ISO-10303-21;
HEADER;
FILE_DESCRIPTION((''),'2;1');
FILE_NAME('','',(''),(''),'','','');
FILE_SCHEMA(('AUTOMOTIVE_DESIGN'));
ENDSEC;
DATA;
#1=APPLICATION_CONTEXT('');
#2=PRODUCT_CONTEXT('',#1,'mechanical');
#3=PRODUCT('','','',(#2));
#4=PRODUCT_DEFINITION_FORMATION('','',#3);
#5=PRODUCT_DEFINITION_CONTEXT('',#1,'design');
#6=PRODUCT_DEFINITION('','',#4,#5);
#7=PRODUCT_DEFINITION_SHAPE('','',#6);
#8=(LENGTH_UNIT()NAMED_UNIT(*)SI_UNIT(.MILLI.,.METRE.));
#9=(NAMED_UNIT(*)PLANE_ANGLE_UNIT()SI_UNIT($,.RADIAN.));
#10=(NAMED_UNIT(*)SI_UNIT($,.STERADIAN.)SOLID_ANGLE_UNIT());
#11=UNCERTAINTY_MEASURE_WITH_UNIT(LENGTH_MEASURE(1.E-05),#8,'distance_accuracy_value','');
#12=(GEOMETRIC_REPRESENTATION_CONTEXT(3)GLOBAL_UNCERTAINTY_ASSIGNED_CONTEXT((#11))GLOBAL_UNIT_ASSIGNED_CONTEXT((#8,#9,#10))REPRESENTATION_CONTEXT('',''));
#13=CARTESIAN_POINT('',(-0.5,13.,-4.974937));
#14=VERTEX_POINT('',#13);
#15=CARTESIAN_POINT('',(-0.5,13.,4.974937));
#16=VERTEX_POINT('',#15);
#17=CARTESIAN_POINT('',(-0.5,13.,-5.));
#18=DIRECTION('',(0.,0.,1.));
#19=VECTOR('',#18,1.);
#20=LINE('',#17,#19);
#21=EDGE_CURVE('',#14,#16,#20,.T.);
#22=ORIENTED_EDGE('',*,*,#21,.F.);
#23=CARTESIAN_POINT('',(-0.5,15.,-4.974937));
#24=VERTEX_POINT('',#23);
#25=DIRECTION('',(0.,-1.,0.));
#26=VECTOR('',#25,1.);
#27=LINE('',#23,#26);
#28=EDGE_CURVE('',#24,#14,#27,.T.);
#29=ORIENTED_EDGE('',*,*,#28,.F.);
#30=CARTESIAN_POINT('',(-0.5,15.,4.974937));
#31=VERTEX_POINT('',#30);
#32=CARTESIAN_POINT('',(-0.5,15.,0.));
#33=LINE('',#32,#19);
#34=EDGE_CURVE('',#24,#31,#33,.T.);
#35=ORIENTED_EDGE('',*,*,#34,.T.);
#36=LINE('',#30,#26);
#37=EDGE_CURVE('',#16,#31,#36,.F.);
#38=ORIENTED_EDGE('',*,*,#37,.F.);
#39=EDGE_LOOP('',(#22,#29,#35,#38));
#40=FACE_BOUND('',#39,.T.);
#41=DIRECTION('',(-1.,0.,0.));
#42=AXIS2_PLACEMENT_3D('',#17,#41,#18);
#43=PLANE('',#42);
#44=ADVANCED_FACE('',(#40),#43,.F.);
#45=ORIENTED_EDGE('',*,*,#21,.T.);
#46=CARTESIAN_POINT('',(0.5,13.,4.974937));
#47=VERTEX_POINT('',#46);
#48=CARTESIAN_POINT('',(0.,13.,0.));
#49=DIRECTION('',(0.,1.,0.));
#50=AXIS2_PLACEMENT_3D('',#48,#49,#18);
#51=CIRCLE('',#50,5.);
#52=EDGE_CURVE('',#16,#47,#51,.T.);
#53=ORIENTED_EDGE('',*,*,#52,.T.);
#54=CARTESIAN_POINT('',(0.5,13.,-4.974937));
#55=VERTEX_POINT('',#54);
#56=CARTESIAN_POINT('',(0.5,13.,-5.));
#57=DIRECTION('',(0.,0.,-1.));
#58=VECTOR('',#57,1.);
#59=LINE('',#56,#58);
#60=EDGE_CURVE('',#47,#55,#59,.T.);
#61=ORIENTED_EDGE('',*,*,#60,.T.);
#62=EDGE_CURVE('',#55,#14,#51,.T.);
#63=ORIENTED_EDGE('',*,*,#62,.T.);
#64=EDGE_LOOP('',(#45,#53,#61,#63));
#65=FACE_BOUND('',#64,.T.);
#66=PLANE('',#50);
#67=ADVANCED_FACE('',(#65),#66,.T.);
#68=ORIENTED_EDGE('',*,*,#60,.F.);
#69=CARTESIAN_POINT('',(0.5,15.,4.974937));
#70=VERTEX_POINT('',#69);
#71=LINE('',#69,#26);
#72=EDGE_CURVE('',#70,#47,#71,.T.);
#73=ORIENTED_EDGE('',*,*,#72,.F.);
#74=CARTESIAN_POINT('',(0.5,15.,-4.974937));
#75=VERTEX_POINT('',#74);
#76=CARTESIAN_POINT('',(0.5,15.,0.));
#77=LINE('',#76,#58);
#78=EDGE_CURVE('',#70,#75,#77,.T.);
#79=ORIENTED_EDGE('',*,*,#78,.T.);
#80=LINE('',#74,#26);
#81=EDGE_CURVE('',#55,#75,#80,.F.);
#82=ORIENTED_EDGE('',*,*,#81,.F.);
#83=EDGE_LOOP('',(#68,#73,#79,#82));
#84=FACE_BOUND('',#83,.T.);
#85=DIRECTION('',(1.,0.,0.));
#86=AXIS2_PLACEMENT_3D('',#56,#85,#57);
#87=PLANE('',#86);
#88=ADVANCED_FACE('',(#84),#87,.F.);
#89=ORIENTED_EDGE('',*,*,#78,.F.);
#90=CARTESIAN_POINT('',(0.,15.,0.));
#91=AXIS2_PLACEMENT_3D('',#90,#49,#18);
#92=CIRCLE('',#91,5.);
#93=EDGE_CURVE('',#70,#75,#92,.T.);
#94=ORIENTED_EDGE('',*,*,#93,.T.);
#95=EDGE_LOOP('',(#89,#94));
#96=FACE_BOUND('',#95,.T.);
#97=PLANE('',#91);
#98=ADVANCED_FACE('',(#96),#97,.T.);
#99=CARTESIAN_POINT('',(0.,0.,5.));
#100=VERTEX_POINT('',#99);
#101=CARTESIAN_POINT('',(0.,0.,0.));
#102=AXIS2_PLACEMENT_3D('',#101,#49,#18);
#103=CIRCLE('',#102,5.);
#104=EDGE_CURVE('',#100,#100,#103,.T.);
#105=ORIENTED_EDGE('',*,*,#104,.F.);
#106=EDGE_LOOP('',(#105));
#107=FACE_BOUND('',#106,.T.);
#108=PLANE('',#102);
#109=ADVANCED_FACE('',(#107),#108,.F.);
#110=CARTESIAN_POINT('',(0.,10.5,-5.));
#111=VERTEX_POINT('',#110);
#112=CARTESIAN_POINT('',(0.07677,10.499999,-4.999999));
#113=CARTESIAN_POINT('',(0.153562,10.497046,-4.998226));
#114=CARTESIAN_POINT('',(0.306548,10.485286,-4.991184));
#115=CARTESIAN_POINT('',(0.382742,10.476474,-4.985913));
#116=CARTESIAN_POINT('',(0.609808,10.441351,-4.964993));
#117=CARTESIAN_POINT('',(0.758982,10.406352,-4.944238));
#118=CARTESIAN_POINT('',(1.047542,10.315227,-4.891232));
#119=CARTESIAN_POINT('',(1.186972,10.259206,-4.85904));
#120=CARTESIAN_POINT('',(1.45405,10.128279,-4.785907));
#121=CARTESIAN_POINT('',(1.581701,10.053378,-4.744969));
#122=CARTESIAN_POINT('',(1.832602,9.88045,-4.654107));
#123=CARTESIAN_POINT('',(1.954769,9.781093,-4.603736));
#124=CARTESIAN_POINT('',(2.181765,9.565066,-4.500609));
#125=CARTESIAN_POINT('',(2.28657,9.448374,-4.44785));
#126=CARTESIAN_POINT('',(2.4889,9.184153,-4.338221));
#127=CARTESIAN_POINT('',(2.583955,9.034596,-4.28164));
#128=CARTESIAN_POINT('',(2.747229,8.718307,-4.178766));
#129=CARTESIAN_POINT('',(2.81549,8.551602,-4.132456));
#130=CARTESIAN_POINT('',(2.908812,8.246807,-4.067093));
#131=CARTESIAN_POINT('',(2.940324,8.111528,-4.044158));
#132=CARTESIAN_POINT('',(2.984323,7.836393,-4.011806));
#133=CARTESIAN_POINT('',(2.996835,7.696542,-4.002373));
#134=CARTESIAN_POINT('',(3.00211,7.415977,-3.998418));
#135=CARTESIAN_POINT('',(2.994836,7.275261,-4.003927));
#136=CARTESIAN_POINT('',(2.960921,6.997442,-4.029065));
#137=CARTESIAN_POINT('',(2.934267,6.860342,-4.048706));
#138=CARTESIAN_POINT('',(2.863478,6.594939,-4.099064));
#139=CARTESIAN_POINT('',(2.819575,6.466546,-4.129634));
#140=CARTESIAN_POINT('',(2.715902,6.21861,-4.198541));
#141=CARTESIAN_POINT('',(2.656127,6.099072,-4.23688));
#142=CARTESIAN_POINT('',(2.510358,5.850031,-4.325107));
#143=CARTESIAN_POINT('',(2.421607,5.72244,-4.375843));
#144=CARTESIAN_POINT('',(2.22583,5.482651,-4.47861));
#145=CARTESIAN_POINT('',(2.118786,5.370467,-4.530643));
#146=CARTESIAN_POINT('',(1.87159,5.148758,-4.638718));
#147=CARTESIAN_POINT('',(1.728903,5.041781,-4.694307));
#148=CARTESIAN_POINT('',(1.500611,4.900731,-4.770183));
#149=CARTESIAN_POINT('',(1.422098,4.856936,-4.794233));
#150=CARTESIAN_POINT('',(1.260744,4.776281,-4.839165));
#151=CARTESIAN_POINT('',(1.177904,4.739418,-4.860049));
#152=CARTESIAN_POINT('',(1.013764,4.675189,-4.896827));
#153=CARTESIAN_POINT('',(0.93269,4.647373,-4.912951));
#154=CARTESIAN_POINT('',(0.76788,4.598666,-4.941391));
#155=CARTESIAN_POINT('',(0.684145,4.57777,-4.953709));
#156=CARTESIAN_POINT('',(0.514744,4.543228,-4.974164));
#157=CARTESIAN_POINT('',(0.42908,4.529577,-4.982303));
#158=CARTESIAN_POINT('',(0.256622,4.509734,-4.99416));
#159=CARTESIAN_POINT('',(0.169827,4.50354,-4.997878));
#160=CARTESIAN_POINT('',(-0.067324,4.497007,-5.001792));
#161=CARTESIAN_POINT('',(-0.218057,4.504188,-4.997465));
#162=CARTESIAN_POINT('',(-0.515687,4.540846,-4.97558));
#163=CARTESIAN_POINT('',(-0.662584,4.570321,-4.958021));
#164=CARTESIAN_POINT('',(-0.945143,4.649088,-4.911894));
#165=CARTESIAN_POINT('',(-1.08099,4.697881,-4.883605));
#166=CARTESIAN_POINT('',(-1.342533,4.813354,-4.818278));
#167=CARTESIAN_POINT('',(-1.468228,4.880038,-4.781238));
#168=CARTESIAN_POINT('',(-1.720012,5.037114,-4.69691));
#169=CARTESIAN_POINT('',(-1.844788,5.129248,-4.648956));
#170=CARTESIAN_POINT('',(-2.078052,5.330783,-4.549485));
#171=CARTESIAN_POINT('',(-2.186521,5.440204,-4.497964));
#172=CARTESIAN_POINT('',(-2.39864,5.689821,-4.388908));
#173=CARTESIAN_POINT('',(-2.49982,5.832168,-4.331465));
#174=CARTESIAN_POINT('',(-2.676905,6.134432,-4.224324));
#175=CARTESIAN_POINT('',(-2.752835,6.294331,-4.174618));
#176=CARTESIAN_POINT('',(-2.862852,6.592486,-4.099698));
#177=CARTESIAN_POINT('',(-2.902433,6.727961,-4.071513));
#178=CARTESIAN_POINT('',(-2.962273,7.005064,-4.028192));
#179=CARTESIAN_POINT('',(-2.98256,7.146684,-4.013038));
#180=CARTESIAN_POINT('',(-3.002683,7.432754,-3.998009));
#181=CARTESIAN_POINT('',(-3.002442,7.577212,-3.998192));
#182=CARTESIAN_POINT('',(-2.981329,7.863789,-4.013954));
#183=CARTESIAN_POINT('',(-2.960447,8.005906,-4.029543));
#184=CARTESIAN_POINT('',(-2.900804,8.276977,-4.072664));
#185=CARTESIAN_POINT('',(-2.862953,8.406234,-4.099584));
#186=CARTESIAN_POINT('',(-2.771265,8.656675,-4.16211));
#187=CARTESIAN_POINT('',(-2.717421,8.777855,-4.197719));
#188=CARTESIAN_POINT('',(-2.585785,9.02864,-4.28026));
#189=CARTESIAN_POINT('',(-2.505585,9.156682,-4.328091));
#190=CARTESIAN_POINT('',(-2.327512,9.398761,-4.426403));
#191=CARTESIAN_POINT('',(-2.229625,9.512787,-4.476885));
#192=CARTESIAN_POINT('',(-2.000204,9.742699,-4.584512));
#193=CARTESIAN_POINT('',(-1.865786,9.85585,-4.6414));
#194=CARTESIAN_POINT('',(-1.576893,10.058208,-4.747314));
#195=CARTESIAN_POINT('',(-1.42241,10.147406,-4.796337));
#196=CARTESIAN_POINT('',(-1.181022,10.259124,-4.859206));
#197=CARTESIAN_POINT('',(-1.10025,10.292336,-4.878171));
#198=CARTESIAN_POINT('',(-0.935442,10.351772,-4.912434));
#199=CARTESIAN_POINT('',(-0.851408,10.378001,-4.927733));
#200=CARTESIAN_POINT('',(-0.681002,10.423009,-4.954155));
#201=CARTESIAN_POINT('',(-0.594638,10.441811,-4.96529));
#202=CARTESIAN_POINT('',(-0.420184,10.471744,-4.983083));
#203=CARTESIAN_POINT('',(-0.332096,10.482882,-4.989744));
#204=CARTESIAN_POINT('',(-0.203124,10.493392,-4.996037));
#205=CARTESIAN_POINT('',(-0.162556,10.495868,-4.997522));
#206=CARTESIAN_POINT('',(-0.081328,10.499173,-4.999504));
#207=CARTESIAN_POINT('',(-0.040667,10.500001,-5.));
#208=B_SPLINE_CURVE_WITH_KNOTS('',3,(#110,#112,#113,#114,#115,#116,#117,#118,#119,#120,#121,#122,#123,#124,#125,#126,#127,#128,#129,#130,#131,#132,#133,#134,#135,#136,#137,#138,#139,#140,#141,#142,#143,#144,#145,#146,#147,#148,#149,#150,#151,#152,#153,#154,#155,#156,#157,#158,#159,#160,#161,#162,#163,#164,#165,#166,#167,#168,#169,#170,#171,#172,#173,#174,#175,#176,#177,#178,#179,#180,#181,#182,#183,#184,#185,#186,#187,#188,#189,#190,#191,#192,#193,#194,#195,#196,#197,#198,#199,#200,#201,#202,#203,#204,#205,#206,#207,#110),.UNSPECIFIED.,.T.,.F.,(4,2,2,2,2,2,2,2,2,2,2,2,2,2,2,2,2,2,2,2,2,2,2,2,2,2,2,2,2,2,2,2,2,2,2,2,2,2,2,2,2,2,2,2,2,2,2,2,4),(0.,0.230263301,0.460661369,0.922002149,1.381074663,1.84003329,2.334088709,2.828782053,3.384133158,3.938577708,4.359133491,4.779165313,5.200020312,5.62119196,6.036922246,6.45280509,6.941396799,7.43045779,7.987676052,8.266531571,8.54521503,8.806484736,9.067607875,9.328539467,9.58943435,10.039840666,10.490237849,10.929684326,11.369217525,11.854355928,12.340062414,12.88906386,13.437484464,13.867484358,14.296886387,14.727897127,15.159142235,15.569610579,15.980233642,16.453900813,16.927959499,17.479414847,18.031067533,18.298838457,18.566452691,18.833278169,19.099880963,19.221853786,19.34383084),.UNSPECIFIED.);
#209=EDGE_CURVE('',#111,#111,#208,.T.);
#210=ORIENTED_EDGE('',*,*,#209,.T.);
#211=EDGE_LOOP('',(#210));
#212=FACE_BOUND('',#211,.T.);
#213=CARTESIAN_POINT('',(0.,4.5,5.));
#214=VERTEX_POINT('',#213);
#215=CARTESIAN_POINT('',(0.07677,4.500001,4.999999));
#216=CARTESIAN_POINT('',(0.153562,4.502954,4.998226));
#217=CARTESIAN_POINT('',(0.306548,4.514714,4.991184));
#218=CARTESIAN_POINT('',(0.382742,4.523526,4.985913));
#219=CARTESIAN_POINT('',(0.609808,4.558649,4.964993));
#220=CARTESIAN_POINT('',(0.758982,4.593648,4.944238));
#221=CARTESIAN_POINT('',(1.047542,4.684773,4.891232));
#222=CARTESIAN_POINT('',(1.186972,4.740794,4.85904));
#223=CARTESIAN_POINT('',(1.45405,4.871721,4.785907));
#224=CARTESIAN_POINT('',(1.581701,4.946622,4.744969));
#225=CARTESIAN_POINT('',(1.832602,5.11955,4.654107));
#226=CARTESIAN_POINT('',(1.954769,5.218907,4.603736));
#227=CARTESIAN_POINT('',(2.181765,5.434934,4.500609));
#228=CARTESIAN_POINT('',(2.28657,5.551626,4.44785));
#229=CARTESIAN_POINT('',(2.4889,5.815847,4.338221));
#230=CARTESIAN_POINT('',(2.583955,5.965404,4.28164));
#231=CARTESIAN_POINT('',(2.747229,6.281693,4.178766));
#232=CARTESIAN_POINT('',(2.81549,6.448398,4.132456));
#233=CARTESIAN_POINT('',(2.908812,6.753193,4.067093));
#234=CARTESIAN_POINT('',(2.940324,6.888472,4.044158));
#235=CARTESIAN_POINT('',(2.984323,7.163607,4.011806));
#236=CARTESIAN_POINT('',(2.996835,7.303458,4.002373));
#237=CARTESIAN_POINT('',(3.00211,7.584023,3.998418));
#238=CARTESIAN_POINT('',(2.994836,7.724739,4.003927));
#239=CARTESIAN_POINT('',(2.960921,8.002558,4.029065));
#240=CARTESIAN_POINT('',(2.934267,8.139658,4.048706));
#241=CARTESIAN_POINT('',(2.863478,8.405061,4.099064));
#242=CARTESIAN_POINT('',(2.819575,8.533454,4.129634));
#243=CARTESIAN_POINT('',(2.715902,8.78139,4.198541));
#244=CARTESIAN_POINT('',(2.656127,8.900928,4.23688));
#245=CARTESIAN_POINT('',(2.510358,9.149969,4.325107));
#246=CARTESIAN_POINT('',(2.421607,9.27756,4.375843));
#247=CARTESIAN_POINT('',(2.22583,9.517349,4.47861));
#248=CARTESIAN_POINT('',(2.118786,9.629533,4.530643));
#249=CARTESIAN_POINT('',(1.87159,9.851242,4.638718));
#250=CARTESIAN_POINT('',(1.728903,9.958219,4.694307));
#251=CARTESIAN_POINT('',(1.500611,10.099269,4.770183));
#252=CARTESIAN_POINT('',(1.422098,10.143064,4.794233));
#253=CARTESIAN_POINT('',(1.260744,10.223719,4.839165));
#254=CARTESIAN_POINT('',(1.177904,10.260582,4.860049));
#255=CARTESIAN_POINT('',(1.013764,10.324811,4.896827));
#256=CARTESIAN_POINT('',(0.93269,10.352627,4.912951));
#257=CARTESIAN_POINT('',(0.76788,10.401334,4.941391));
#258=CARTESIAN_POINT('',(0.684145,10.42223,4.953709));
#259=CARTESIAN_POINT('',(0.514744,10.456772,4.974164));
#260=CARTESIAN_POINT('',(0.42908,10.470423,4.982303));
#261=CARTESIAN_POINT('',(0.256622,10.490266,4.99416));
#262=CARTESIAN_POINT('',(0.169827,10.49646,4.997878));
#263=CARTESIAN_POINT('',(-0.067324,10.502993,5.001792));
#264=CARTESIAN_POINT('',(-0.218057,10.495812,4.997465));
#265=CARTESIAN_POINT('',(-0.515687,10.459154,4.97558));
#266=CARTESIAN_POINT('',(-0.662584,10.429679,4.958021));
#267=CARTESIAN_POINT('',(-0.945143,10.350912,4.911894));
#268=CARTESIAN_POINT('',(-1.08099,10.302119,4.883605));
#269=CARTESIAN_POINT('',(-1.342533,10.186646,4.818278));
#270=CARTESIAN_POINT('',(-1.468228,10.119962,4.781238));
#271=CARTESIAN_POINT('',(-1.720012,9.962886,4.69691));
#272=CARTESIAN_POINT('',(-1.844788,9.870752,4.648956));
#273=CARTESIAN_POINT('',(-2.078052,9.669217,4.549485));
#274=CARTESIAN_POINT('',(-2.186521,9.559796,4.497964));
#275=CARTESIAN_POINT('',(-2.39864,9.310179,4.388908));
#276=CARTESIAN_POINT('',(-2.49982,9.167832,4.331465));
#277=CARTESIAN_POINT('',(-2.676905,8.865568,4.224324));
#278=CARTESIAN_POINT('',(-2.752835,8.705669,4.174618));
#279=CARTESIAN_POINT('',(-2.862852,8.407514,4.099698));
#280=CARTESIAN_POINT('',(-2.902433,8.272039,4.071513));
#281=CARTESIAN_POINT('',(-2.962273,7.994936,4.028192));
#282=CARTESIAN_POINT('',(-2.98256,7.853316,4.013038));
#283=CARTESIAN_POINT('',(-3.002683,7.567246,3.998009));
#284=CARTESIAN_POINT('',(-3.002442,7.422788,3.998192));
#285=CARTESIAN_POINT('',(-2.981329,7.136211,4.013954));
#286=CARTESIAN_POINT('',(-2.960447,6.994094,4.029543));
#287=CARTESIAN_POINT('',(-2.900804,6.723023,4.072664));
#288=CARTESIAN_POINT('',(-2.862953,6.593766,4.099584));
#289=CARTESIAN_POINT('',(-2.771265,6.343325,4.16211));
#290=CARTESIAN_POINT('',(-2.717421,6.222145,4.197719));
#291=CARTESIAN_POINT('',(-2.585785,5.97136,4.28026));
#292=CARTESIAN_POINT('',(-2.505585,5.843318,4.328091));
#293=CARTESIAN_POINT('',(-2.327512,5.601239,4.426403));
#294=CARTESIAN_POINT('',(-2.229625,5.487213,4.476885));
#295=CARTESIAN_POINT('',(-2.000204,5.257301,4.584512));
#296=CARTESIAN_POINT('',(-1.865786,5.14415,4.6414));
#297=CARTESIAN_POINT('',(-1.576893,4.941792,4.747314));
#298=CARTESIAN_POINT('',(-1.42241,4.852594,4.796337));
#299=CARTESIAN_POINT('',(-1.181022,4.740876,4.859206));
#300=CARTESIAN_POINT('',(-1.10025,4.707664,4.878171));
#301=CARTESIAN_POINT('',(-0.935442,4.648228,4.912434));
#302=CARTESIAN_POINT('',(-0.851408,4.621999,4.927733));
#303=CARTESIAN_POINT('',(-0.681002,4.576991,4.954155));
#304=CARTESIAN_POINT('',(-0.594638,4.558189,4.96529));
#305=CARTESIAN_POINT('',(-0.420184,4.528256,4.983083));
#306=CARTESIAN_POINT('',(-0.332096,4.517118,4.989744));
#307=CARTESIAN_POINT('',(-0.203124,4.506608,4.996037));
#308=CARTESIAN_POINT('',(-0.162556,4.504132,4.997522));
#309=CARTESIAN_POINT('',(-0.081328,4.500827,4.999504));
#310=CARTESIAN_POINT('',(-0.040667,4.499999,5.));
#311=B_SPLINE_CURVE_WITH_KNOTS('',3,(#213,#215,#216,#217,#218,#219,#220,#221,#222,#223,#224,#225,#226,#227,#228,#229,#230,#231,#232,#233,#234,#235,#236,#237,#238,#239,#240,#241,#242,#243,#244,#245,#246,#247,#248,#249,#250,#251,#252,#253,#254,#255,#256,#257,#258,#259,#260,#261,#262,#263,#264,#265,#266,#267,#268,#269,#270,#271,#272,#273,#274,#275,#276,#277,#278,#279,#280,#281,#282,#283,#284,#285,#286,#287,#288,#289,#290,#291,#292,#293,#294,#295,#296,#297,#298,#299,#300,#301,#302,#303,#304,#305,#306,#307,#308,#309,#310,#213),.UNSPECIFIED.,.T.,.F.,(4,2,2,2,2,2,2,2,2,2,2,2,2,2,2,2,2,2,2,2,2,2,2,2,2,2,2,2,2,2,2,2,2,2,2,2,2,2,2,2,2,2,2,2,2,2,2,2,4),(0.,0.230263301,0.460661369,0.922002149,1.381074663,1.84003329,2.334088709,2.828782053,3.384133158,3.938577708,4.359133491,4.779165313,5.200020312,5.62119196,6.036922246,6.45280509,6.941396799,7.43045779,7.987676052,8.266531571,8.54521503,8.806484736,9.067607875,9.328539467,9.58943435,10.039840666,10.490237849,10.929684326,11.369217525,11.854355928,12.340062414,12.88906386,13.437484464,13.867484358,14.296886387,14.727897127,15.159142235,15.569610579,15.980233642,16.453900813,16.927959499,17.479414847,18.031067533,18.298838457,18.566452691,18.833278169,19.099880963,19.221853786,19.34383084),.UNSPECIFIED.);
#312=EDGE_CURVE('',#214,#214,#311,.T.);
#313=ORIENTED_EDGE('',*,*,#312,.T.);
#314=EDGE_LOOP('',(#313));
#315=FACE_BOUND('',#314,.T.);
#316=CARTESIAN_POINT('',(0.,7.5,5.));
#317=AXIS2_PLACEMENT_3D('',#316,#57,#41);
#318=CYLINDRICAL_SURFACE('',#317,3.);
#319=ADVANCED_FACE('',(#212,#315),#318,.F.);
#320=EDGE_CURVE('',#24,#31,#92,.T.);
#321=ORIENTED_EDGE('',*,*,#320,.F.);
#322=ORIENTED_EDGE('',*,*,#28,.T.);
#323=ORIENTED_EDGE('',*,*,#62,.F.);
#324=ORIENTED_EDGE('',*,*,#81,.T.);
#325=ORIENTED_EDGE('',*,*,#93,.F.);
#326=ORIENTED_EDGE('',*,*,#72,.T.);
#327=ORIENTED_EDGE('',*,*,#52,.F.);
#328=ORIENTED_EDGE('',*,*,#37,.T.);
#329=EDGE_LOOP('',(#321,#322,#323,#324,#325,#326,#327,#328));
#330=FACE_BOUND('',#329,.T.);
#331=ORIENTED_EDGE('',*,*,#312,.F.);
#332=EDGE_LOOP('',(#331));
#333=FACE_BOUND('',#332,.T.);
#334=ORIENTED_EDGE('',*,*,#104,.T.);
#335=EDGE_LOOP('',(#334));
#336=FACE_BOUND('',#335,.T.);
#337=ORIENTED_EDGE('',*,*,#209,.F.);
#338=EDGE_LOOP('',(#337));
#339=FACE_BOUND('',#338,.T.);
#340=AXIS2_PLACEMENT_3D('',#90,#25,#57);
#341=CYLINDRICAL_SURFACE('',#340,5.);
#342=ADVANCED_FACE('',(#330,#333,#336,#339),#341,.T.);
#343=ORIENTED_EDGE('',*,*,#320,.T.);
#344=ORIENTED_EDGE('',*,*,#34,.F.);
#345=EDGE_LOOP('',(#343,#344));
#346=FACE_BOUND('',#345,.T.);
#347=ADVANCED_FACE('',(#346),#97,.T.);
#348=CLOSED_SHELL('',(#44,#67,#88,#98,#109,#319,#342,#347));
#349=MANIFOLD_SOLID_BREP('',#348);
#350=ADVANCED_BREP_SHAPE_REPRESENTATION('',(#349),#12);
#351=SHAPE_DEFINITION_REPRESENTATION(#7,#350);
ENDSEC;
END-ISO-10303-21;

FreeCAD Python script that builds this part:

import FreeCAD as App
import Part
import Sketcher
Q = App.Units.Quantity


def add_polygon(sketch, points):
    """Adds a closed chain of lines whose ends are joined by coincident constraints."""
    first, n = sketch.GeometryCount, len(points)
    for a, b in zip(points, points[1:] + points[:1]):
        sketch.addGeometry(Part.LineSegment(App.Vector(*a, 0), App.Vector(*b, 0)), False)
    for i in range(n):
        sketch.addConstraint(Sketcher.Constraint("Coincident", first + i, 2, first + (i + 1) % n, 1))

doc = App.newDocument("Part")
body = doc.addObject("PartDesign::Body", "Body")

sketch1 = body.newObject("Sketcher::SketchObject", "Sketch")
sketch1.AttachmentSupport = (doc.getObject("XZ_Plane"), [""])
sketch1.MapMode = "FlatFace"
sketch1.addGeometry(Part.Circle(App.Vector(0, 0, 0), App.Vector(0, 0, 1), 5), False)
sketch1.addConstraint(Sketcher.Constraint("Coincident", 0, 3, -1, 1))
sketch1.addConstraint(Sketcher.Constraint("Diameter", 0, Q("10 mm")))
pad1 = body.newObject("PartDesign::Pad", "Pad")
pad1.Profile = sketch1
pad1.Length = 15
pad1.Reversed = True

sketch2 = body.newObject("Sketcher::SketchObject", "Sketch001")
sketch2.AttachmentSupport = (doc.getObject("XZ_Plane"), [""])
sketch2.MapMode = "FlatFace"
sketch2.AttachmentOffset = App.Placement(App.Vector(0, 0, -15), App.Rotation())
add_polygon(sketch2, [(-0.5, -5), (-0.5, 5), (0.5, 5), (0.5, -5)])
sketch2.addConstraint(Sketcher.Constraint("Vertical", 0))
sketch2.addConstraint(Sketcher.Constraint("Horizontal", 1))
sketch2.addConstraint(Sketcher.Constraint("Vertical", 2))
sketch2.addConstraint(Sketcher.Constraint("Horizontal", 3))
sketch2.addConstraint(Sketcher.Constraint("Symmetric", 0, 2, 2, 2, -1, 1))
sketch2.addConstraint(Sketcher.Constraint("DistanceX", 1, 1, 1, 2, Q("1 mm")))
sketch2.addConstraint(Sketcher.Constraint("DistanceY", 0, 1, 0, 2, Q("10 mm")))
pocket1 = body.newObject("PartDesign::Pocket", "Pocket")
pocket1.Profile = sketch2
pocket1.Length = 2
pocket1.Reversed = True

sketch3 = body.newObject("Sketcher::SketchObject", "Sketch002")
sketch3.AttachmentSupport = (doc.getObject("XY_Plane"), [""])
sketch3.MapMode = "FlatFace"
sketch3.addGeometry(Part.Circle(App.Vector(0, 7.5, 0), App.Vector(0, 0, 1), 3), False)
sketch3.addConstraint(Sketcher.Constraint("PointOnObject", 0, 3, -2))
sketch3.addConstraint(Sketcher.Constraint("Diameter", 0, Q("6 mm")))
sketch3.addConstraint(Sketcher.Constraint("DistanceY", -1, 1, 0, 3, Q("7.5 mm")))
pocket2 = body.newObject("PartDesign::Pocket", "Pocket001")
pocket2.Profile = sketch3
pocket2.Type = "ThroughAll"
pocket2.Midplane = True

doc.recompute()
